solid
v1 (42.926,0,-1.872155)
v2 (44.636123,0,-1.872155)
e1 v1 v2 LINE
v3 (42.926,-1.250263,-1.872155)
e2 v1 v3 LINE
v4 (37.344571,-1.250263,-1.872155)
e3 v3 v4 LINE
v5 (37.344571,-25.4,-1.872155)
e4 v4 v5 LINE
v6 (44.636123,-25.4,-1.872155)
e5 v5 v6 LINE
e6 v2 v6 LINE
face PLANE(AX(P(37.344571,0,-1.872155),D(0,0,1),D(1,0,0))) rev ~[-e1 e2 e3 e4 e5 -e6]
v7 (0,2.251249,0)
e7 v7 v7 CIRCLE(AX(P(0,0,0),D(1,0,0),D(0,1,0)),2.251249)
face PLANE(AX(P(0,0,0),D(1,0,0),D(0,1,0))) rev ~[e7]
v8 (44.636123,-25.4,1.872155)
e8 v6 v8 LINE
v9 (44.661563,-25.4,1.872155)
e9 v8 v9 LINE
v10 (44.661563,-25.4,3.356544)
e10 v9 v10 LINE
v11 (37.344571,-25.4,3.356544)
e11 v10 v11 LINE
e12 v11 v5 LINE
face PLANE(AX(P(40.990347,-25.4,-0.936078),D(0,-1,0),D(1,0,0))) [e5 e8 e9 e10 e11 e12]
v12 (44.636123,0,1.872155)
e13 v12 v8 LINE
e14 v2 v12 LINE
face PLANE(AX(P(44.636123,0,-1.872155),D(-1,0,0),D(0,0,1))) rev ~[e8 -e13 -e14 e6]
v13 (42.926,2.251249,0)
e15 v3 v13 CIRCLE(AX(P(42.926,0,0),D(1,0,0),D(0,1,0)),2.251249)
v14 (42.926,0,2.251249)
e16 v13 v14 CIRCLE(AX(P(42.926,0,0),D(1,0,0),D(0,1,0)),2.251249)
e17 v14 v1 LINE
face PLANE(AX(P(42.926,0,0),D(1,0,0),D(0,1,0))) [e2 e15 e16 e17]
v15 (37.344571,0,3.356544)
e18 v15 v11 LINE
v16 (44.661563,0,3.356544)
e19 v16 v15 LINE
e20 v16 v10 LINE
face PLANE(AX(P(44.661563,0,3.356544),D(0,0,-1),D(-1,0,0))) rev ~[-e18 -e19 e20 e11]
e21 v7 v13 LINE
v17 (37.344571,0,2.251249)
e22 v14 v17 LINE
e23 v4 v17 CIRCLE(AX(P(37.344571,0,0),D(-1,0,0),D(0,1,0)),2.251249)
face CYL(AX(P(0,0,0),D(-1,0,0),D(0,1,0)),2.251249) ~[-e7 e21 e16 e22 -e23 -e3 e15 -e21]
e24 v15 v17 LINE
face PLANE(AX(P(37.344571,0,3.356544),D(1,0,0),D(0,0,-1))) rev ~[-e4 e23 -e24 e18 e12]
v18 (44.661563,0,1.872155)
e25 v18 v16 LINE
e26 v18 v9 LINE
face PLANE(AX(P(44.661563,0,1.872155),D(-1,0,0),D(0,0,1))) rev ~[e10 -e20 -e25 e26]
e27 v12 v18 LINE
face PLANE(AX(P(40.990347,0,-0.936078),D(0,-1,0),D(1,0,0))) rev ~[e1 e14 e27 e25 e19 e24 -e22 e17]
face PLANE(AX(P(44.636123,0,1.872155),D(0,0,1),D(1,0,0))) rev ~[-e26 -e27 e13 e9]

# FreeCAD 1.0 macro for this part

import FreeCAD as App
import Part
import Sketcher

V = App.Vector
Q = App.Units.Quantity

doc = App.newDocument("Part")
params = doc.addObject("Spreadsheet::Sheet", "Params")
for row, (alias, value) in enumerate([
    ("pad1_length", "1.69 in"),
    ("pad2_length", "1 in"),
], start=1):
    params.set(f"A{row}", alias)
    params.set(f"B{row}", "=" + value)
    params.setAlias(f"B{row}", alias)

body = doc.addObject("PartDesign::Body", "Body")

# Sketch on YZ plane
sketch1 = body.newObject("Sketcher::SketchObject", "Sketch")
sketch1.AttachmentSupport = (doc.getObject("YZ_Plane"), [""])
sketch1.MapMode = "FlatFace"
sketch1.addGeometry(Part.Circle(V(0, 0, 0), V(0, 0, 1), 2.3), False)
sketch1.addConstraint(Sketcher.Constraint("Coincident", 0, 3, -1, 1))
sketch1.addConstraint(Sketcher.Constraint("Diameter", 0, Q("4.502498 mm")))
pad1 = body.newObject("PartDesign::Pad", "Pad")
pad1.Profile = sketch1
pad1.setExpression("Length", "Params.pad1_length")

# Sketch on XZ plane
sketch2 = body.newObject("Sketcher::SketchObject", "Sketch001")
sketch2.AttachmentSupport = (doc.getObject("XZ_Plane"), [""])
sketch2.MapMode = "FlatFace"
sketch2.addGeometry(Part.LineSegment(V(37.345, -1.872, 0), V(44.636, -1.872, 0)), False)
sketch2.addGeometry(Part.LineSegment(V(44.636, -1.872, 0), V(44.636, 1.872, 0)), False)
sketch2.addGeometry(Part.LineSegment(V(44.636, 1.872, 0), V(44.662, 1.872, 0)), False)
sketch2.addGeometry(Part.LineSegment(V(44.662, 1.872, 0), V(44.662, 3.357, 0)), False)
sketch2.addGeometry(Part.LineSegment(V(44.662, 3.357, 0), V(37.345, 3.357, 0)), False)
sketch2.addGeometry(Part.LineSegment(V(37.345, 3.357, 0), V(37.345, -1.872, 0)), False)
sketch2.addConstraint(Sketcher.Constraint("Coincident", 0, 2, 1, 1))
sketch2.addConstraint(Sketcher.Constraint("Coincident", 1, 2, 2, 1))
sketch2.addConstraint(Sketcher.Constraint("Coincident", 2, 2, 3, 1))
sketch2.addConstraint(Sketcher.Constraint("Coincident", 3, 2, 4, 1))
sketch2.addConstraint(Sketcher.Constraint("Coincident", 4, 2, 5, 1))
sketch2.addConstraint(Sketcher.Constraint("Coincident", 5, 2, 0, 1))
sketch2.addConstraint(Sketcher.Constraint("Horizontal", 0))
sketch2.addConstraint(Sketcher.Constraint("Vertical", 1))
sketch2.addConstraint(Sketcher.Constraint("Horizontal", 2))
sketch2.addConstraint(Sketcher.Constraint("Vertical", 3))
sketch2.addConstraint(Sketcher.Constraint("Horizontal", 4))
sketch2.addConstraint(Sketcher.Constraint("Vertical", 5))
sketch2.addConstraint(Sketcher.Constraint("DistanceY", 5, 2, 5, 1, Q("5.228699 mm")))
sketch2.addConstraint(Sketcher.Constraint("DistanceX", 0, 1, 0, 2, Q("7.291552 mm")))
sketch2.addConstraint(Sketcher.Constraint("DistanceX", 2, 1, 2, 2, Q("0.02544 mm")))
sketch2.addConstraint(Sketcher.Constraint("DistanceY", 1, 1, 1, 2, Q("3.74431 mm")))
sketch2.addConstraint(Sketcher.Constraint("DistanceX", -1, 1, 4, 2, Q("37.344571 mm")))
sketch2.addConstraint(Sketcher.Constraint("DistanceY", 0, 2, -1, 1, Q("1.872155 mm")))
pad2 = body.newObject("PartDesign::Pad", "Pad001")
pad2.Profile = sketch2
pad2.setExpression("Length", "Params.pad2_length")

doc.recompute()
